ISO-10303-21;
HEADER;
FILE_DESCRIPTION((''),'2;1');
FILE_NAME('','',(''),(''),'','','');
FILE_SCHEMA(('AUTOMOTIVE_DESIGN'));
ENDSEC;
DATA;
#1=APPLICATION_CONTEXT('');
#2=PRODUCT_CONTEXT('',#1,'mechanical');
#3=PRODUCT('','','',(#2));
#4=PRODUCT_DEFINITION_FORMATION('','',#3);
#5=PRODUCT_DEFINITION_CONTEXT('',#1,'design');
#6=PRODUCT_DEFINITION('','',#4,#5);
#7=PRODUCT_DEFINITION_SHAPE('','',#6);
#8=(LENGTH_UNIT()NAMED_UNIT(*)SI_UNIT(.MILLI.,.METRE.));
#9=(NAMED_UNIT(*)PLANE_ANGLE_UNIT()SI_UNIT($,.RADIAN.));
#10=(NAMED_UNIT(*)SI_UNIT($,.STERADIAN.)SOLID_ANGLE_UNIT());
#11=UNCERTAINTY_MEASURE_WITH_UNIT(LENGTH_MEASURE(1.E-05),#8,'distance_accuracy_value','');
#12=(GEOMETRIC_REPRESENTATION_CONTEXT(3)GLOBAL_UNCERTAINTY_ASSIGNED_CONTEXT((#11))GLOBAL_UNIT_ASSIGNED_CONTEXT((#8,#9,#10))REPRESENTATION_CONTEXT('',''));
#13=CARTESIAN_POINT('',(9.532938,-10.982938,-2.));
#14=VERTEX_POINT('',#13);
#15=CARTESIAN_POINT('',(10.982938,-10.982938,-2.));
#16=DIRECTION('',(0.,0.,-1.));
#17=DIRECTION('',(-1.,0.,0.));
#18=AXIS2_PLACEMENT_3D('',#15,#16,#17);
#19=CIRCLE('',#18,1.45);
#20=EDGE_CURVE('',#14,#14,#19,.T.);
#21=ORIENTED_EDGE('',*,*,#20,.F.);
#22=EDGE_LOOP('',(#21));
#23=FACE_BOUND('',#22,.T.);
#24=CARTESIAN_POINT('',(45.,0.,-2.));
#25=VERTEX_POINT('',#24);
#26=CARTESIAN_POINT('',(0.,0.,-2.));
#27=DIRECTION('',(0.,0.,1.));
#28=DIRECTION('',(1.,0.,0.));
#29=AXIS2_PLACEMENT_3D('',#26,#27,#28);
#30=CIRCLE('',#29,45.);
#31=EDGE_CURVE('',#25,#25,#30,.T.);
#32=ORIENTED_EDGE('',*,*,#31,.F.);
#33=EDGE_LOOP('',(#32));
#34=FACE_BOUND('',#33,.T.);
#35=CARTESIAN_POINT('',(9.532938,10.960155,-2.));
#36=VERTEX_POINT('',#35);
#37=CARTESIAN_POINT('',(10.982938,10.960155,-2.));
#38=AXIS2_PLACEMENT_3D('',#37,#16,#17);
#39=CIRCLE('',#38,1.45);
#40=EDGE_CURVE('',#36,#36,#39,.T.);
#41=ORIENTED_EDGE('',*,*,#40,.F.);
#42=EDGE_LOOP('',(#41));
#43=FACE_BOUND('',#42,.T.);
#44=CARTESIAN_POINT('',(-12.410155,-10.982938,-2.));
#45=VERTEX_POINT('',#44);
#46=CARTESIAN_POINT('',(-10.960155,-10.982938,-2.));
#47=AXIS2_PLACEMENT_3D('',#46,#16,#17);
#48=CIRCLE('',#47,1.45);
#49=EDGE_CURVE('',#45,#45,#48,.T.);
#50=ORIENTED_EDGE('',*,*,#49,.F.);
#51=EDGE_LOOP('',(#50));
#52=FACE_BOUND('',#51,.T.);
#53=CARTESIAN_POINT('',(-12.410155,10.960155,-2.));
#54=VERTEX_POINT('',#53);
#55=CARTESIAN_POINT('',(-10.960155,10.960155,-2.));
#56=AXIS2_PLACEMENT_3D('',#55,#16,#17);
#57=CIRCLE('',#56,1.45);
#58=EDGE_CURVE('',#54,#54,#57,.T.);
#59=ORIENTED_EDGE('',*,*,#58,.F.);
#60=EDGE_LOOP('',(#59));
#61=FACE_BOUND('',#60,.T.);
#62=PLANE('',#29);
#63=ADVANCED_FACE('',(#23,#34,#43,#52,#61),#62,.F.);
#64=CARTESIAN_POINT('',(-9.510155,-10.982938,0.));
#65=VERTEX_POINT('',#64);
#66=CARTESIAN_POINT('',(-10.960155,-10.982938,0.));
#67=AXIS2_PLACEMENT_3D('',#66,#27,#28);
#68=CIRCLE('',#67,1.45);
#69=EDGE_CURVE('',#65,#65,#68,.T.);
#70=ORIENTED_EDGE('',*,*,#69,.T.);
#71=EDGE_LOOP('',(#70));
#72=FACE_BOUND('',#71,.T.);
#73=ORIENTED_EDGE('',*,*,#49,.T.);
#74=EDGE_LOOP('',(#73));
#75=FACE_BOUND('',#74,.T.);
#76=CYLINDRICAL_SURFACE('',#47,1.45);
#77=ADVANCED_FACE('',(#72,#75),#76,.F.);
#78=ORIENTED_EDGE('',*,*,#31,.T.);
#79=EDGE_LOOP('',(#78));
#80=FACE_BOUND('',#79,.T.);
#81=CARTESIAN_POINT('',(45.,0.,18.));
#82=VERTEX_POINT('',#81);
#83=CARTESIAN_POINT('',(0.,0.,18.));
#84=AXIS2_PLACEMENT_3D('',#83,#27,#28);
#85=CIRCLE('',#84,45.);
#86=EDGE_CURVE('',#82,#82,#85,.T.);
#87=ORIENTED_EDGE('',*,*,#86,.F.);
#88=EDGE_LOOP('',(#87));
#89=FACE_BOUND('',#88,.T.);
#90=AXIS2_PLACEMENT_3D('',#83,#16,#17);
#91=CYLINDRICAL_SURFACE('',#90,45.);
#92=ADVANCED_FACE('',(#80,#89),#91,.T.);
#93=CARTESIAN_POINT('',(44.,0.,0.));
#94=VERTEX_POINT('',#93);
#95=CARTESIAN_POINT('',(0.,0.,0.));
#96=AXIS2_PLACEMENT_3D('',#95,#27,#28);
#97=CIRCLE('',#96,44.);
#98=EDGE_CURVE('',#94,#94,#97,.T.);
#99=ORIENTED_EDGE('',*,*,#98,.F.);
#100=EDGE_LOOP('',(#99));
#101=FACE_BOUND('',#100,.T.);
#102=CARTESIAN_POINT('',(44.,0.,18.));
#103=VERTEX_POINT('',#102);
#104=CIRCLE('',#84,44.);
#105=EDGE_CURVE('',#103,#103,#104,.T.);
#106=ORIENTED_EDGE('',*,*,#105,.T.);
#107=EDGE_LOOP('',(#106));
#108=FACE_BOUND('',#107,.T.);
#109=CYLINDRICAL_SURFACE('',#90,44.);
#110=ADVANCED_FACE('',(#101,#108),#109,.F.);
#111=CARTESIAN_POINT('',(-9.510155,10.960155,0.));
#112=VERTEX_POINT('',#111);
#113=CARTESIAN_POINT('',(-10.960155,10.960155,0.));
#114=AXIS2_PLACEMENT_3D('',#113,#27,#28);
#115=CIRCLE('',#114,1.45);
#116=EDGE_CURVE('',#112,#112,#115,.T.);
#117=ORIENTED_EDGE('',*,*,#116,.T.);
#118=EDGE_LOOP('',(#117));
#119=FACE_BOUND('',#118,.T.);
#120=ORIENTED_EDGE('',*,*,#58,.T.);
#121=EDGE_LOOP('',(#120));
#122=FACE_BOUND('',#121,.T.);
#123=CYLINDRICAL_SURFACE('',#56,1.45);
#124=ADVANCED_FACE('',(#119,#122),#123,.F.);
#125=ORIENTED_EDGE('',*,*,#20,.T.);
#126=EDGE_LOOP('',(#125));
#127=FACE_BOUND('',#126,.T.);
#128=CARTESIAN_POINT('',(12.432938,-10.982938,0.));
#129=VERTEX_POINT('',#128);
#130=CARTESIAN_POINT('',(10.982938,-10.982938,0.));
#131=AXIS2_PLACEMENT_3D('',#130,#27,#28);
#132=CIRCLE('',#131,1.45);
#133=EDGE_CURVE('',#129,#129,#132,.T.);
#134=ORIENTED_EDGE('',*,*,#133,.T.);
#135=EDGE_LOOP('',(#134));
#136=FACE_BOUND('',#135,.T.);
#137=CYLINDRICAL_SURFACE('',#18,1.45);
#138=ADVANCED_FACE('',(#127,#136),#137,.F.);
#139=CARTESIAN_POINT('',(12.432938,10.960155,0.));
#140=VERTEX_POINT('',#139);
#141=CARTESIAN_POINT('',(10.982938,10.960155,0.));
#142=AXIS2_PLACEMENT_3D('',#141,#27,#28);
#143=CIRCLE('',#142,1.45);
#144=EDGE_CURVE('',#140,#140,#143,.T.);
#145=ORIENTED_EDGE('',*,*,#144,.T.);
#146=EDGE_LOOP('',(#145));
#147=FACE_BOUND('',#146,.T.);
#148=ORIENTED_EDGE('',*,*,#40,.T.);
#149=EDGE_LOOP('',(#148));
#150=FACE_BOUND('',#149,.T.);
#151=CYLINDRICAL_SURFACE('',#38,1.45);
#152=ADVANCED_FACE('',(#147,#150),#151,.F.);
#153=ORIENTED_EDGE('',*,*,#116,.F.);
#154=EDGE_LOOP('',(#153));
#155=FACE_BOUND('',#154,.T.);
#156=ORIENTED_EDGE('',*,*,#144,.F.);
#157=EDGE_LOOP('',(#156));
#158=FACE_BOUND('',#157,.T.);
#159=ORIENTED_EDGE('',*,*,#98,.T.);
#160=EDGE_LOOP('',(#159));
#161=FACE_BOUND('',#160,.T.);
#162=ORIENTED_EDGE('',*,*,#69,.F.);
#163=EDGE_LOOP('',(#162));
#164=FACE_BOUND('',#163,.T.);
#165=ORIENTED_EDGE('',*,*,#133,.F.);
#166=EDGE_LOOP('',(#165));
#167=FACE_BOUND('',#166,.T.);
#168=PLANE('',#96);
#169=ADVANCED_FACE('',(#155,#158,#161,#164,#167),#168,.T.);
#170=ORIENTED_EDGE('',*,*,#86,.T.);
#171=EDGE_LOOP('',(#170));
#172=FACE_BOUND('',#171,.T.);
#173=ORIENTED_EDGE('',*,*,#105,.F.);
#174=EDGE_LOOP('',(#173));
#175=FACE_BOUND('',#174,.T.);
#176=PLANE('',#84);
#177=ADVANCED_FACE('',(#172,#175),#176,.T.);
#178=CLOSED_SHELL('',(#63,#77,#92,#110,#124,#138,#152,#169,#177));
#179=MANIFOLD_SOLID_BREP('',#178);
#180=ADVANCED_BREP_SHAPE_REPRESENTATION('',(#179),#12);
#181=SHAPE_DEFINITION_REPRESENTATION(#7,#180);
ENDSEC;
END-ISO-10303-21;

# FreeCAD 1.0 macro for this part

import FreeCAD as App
import Part
import Sketcher

V = App.Vector

doc = App.newDocument("Part")
body = doc.addObject("PartDesign::Body", "Body")

# Sketch on XY plane
sketch1 = body.newObject("Sketcher::SketchObject", "Sketch")
sketch1.AttachmentSupport = (doc.getObject("XY_Plane"), [""])
sketch1.MapMode = "FlatFace"
sketch1.addGeometry(Part.Circle(V(0, 0, 0), V(0, 0, 1), 45), False)
sketch1.addGeometry(Part.Circle(V(0, 0, 0), V(0, 0, 1), 44), False)
sketch1.addConstraint(Sketcher.Constraint("Coincident", 0, 3, -1, 1))
sketch1.addConstraint(Sketcher.Constraint("Coincident", 1, 3, -1, 1))
sketch1.addConstraint(Sketcher.Constraint("Diameter", 0, 90.0))
sketch1.addConstraint(Sketcher.Constraint("Diameter", 1, 88.0))
pad1 = body.newObject("PartDesign::Pad", "Pad")
pad1.Profile = sketch1
pad1.Length = 18

# Sketch on XY plane
sketch2 = body.newObject("Sketcher::SketchObject", "Sketch001")
sketch2.AttachmentSupport = (doc.getObject("XY_Plane"), [""])
sketch2.MapMode = "FlatFace"
sketch2.AttachmentOffset = App.Placement(V(0, 0, -2), App.Rotation())
sketch2.addGeometry(Part.Circle(V(0, 0, 0), V(0, 0, 1), 45), False)
sketch2.addConstraint(Sketcher.Constraint("Coincident", 0, 3, -1, 1))
sketch2.addConstraint(Sketcher.Constraint("Diameter", 0, 90.0))
pad2 = body.newObject("PartDesign::Pad", "Pad001")
pad2.Profile = sketch2
pad2.Length = 2

# Sketch on XY plane
sketch3 = body.newObject("Sketcher::SketchObject", "Sketch002")
sketch3.AttachmentSupport = (doc.getObject("XY_Plane"), [""])
sketch3.MapMode = "FlatFace"
sketch3.AttachmentOffset = App.Placement(V(0, 0, -2), App.Rotation())
sketch3.addGeometry(Part.Circle(V(-11, 11, 0), V(0, 0, 1), 1.4), False)
sketch3.addConstraint(Sketcher.Constraint("Diameter", 0, 2.9))
sketch3.addConstraint(Sketcher.Constraint("DistanceX", 0, 3, -1, 1, 10.960155))
sketch3.addConstraint(Sketcher.Constraint("DistanceY", -1, 1, 0, 3, 10.960155))
doc.recompute()
hole = body.newObject("PartDesign::Hole", "Hole")
hole.Profile = sketch3
hole.ThreadType = "None"
hole.Diameter = 2.9
hole.DepthType = "ThroughAll"
hole.Reversed = True
doc.recompute()

datumline = body.newObject("PartDesign::Line", "DatumLine")
datumline.Placement = App.Placement(V(0.011391, -0.011391, 0), App.Rotation(V(0, 0, 1), V(0, 0, 1)))
polarpattern = body.newObject("PartDesign::PolarPattern", "PolarPattern")
polarpattern.Originals = [hole]
polarpattern.Axis = (datumline, [""])
polarpattern.Angle = 360
polarpattern.Occurrences = 4
body.Tip = polarpattern

doc.recompute()
